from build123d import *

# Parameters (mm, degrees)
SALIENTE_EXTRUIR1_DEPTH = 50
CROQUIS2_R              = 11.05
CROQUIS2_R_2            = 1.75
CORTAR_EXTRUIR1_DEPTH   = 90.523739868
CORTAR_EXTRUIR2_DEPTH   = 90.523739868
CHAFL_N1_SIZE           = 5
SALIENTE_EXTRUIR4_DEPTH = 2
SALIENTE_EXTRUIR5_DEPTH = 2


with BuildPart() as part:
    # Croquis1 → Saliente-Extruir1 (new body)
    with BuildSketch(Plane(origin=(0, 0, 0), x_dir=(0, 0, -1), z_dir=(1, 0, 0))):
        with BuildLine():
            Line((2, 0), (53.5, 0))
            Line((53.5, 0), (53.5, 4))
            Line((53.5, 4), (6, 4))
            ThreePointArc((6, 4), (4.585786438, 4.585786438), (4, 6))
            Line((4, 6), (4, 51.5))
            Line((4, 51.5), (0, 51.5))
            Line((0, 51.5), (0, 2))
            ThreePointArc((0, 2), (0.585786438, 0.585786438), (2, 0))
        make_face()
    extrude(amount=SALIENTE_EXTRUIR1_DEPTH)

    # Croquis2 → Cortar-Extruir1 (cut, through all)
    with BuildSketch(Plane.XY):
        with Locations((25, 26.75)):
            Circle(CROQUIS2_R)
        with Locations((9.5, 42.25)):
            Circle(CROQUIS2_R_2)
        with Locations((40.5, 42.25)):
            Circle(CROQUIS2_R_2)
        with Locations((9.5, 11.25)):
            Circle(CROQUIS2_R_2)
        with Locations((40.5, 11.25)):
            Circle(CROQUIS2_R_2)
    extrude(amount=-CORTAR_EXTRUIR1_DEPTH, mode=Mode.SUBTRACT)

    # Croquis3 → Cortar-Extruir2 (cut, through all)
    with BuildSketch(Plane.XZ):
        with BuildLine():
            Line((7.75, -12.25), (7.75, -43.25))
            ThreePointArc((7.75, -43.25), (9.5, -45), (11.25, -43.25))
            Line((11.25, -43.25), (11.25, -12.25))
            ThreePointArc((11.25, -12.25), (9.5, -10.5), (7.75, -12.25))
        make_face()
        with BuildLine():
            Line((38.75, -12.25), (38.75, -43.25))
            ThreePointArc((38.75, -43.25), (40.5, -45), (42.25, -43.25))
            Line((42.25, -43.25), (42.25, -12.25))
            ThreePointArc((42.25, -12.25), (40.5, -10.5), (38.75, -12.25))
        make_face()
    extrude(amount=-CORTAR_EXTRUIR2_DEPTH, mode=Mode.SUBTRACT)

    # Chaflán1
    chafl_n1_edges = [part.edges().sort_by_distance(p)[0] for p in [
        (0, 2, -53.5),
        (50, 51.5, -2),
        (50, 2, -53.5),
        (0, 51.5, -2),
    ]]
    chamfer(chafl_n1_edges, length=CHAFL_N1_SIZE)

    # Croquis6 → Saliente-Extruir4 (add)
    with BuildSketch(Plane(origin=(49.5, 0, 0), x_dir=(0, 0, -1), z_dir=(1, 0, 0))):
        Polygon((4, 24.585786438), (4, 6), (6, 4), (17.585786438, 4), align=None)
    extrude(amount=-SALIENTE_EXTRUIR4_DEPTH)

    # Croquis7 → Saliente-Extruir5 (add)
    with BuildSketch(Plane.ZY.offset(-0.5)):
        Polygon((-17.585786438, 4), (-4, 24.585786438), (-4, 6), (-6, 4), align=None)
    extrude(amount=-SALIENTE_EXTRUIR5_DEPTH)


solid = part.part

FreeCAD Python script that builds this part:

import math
import FreeCAD as App
import Part
import Sketcher
Q = App.Units.Quantity


def edges_at(feature, points):
    """Names of the edges that pass closest to the given points."""
    edges = feature.Shape.Edges
    near = lambda p: min(range(len(edges)), key=lambda i: edges[i].distToShape(Part.Vertex(*p))[0])
    return sorted({f"Edge{near(p) + 1}" for p in points})


def add_polygon(sketch, points):
    """Adds a closed chain of lines whose ends are joined by coincident constraints."""
    first, n = sketch.GeometryCount, len(points)
    for a, b in zip(points, points[1:] + points[:1]):
        sketch.addGeometry(Part.LineSegment(App.Vector(*a, 0), App.Vector(*b, 0)), False)
    for i in range(n):
        sketch.addConstraint(Sketcher.Constraint("Coincident", first + i, 2, first + (i + 1) % n, 1))

doc = App.newDocument("Part")
body = doc.addObject("PartDesign::Body", "Body")

sketch1 = doc.addObject("Sketcher::SketchObject", "Sketch")
body.addObject(sketch1)
sketch1.AttachmentSupport = (doc.YZ_Plane, [""])
sketch1.MapMode = "FlatFace"
sketch1.addGeometry([
    Part.LineSegment(App.Vector(0, -2, 0), App.Vector(0, -53.5, 0)),
    Part.LineSegment(App.Vector(0, -53.5, 0), App.Vector(4, -53.5, 0)),
    Part.LineSegment(App.Vector(4, -53.5, 0), App.Vector(4, -6, 0)),
    Part.ArcOfCircle(Part.Circle(App.Vector(6, -6, 0), App.Vector(0, 0, 1), 2), math.radians(90), math.radians(180)),
    Part.LineSegment(App.Vector(6, -4, 0), App.Vector(51.5, -4, 0)),
    Part.LineSegment(App.Vector(51.5, -4, 0), App.Vector(51.5, 0, 0)),
    Part.LineSegment(App.Vector(51.5, 0, 0), App.Vector(2, 0, 0)),
    Part.ArcOfCircle(Part.Circle(App.Vector(2, -2, 0), App.Vector(0, 0, 1), 2), math.radians(90), math.radians(180)),
], False)
sketch1.addConstraint([
    Sketcher.Constraint("Coincident", 0, 2, 1, 1),
    Sketcher.Constraint("Coincident", 1, 2, 2, 1),
    Sketcher.Constraint("Tangent", 2, 2, 3, 2),
    Sketcher.Constraint("Tangent", 3, 1, 4, 1),
    Sketcher.Constraint("Coincident", 4, 2, 5, 1),
    Sketcher.Constraint("Coincident", 5, 2, 6, 1),
    Sketcher.Constraint("Tangent", 6, 2, 7, 1),
    Sketcher.Constraint("Tangent", 7, 2, 0, 1),
    Sketcher.Constraint("Vertical", 0),
    Sketcher.Constraint("Horizontal", 1),
    Sketcher.Constraint("Vertical", 2),
    Sketcher.Constraint("Horizontal", 4),
    Sketcher.Constraint("Vertical", 5),
    Sketcher.Constraint("Horizontal", 6),
    Sketcher.Constraint("Equal", 3, 7),
    Sketcher.Constraint("PointOnObject", 0, 2, -2),
    Sketcher.Constraint("PointOnObject", 5, 2, -1),
    Sketcher.Constraint("Equal", 1, 5),
    Sketcher.Constraint("Radius", 3, 2.0),
    Sketcher.Constraint("DistanceX", 1, 1, 1, 2, 4.0),
    Sketcher.Constraint("DistanceX", 4, 1, 4, 2, 45.5),
    Sketcher.Constraint("DistanceY", 0, 2, 0, 1, 51.5),
])
pad1 = doc.addObject("PartDesign::Pad", "Pad")
body.addObject(pad1)
pad1.Profile = sketch1
pad1.Length = 50

sketch2 = doc.addObject("Sketcher::SketchObject", "Sketch001")
body.addObject(sketch2)
sketch2.AttachmentSupport = (doc.XY_Plane, [""])
sketch2.MapMode = "FlatFace"
sketch2.addGeometry([
    Part.Circle(App.Vector(25, 26.75, 0), App.Vector(0, 0, 1), 11.05),
    Part.Circle(App.Vector(9.5, 42.25, 0), App.Vector(0, 0, 1), 1.75),
    Part.Circle(App.Vector(40.5, 42.25, 0), App.Vector(0, 0, 1), 1.75),
    Part.Circle(App.Vector(9.5, 11.25, 0), App.Vector(0, 0, 1), 1.75),
    Part.Circle(App.Vector(40.5, 11.25, 0), App.Vector(0, 0, 1), 1.75),
], False)
sketch2.addConstraint([
    Sketcher.Constraint("Equal", 1, 2),
    Sketcher.Constraint("Equal", 2, 3),
    Sketcher.Constraint("Equal", 3, 4),
    Sketcher.Constraint("Horizontal", 1, 3, 2, 3),
    Sketcher.Constraint("Horizontal", 3, 3, 4, 3),
    Sketcher.Constraint("Vertical", 1, 3, 3, 3),
    Sketcher.Constraint("Vertical", 2, 3, 4, 3),
    Sketcher.Constraint("Diameter", 0, 22.1),
    Sketcher.Constraint("Diameter", 1, 3.5),
    Sketcher.Constraint("DistanceX", -1, 1, 0, 3, 25.0),
    Sketcher.Constraint("DistanceX", 1, 3, 2, 3, 31.0),
    Sketcher.Constraint("DistanceY", 3, 3, 1, 3, 31.0),
    Sketcher.Constraint("DistanceX", -1, 1, 1, 3, 9.5),
    Sketcher.Constraint("DistanceY", 0, 3, 1, 3, 15.5),
    Sketcher.Constraint("DistanceY", -1, 1, 0, 3, 26.75),
])
pocket1 = doc.addObject("PartDesign::Pocket", "Pocket")
body.addObject(pocket1)
pocket1.Profile = sketch2
pocket1.Type = "ThroughAll"

sketch3 = doc.addObject("Sketcher::SketchObject", "Sketch002")
body.addObject(sketch3)
sketch3.AttachmentSupport = (doc.XZ_Plane, [""])
sketch3.MapMode = "FlatFace"
sketch3.addGeometry([
    Part.LineSegment(App.Vector(7.75, -12.25, 0), App.Vector(7.75, -43.25, 0)),
    Part.ArcOfCircle(Part.Circle(App.Vector(9.5, -43.25, 0), App.Vector(0, 0, 1), 1.75), math.radians(180), math.radians(360)),
    Part.LineSegment(App.Vector(11.25, -43.25, 0), App.Vector(11.25, -12.25, 0)),
    Part.ArcOfCircle(Part.Circle(App.Vector(9.5, -12.25, 0), App.Vector(0, 0, 1), 1.75), math.radians(0), math.radians(180)),
    Part.LineSegment(App.Vector(38.75, -12.25, 0), App.Vector(38.75, -43.25, 0)),
    Part.ArcOfCircle(Part.Circle(App.Vector(40.5, -43.25, 0), App.Vector(0, 0, 1), 1.75), math.radians(180), math.radians(360)),
    Part.LineSegment(App.Vector(42.25, -43.25, 0), App.Vector(42.25, -12.25, 0)),
    Part.ArcOfCircle(Part.Circle(App.Vector(40.5, -12.25, 0), App.Vector(0, 0, 1), 1.75), math.radians(0), math.radians(180)),
], False)
sketch3.addConstraint([
    Sketcher.Constraint("Tangent", 0, 2, 1, 1),
    Sketcher.Constraint("Tangent", 1, 2, 2, 1),
    Sketcher.Constraint("Tangent", 2, 2, 3, 1),
    Sketcher.Constraint("Tangent", 3, 2, 0, 1),
    Sketcher.Constraint("Tangent", 4, 2, 5, 1),
    Sketcher.Constraint("Tangent", 5, 2, 6, 1),
    Sketcher.Constraint("Tangent", 6, 2, 7, 1),
    Sketcher.Constraint("Tangent", 7, 2, 4, 1),
    Sketcher.Constraint("Vertical", 0),
    Sketcher.Constraint("Vertical", 2),
    Sketcher.Constraint("Vertical", 4),
    Sketcher.Constraint("Vertical", 6),
    Sketcher.Constraint("Equal", 3, 5),
    Sketcher.Constraint("Horizontal", 1, 3, 5, 3),
    Sketcher.Constraint("Horizontal", 3, 3, 7, 3),
    Sketcher.Constraint("DistanceY", 0, 2, 0, 1, 31.0),
    Sketcher.Constraint("Radius", 1, 1.75),
    Sketcher.Constraint("DistanceX", 1, 3, 5, 3, 31.0),
    Sketcher.Constraint("DistanceX", -1, 1, 1, 3, 9.5),
    Sketcher.Constraint("DistanceY", 1, 3, -1, 1, 43.25),
])
pocket2 = doc.addObject("PartDesign::Pocket", "Pocket001")
body.addObject(pocket2)
pocket2.Profile = sketch3
pocket2.Type = "ThroughAll"
doc.recompute()

chamfer = doc.addObject("PartDesign::Chamfer", "Chamfer")
body.addObject(chamfer)
chamfer.Base = (pocket2, edges_at(pocket2, [
    (0, 2, -53.5),
    (50, 51.5, -2),
    (50, 2, -53.5),
    (0, 51.5, -2),
]))
chamfer.Size = 5

sketch4 = doc.addObject("Sketcher::SketchObject", "Sketch003")
body.addObject(sketch4)
sketch4.AttachmentSupport = (doc.YZ_Plane, [""])
sketch4.MapMode = "FlatFace"
sketch4.AttachmentOffset = App.Placement(App.Vector(0, 0, 49.5), App.Rotation())
add_polygon(sketch4, [(24.585786, -4), (6, -4), (4, -6), (4, -17.585786)])
sketch4.addConstraint([
    Sketcher.Constraint("Horizontal", 0),
    Sketcher.Constraint("Vertical", 2),
    Sketcher.Constraint("Angle", 1, Q("-135 deg")),
    Sketcher.Constraint("DistanceX", -1, 1, 0, 2, 6.0),
    Sketcher.Constraint("DistanceY", 0, 2, -1, 1, 4.0),
    Sketcher.Constraint("DistanceX", -1, 1, 1, 2, 4.0),
    Sketcher.Constraint("DistanceX", 0, 2, 0, 1, 18.585786),
    Sketcher.Constraint("DistanceY", 2, 2, 2, 1, 11.585786),
])
pad2 = doc.addObject("PartDesign::Pad", "Pad001")
body.addObject(pad2)
pad2.Profile = sketch4
pad2.Length = 2
pad2.Reversed = True

sketch5 = doc.addObject("Sketcher::SketchObject", "Sketch004")
body.addObject(sketch5)
sketch5.AttachmentSupport = (doc.YZ_Plane, [""])
sketch5.MapMode = "FlatFace"
sketch5.AttachmentOffset = App.Placement(App.Vector(0, 0, 0.5), App.Rotation())
add_polygon(sketch5, [(24.585786, -4), (4, -17.585786), (4, -6), (6, -4)])
sketch5.addConstraint([
    Sketcher.Constraint("Vertical", 1),
    Sketcher.Constraint("Horizontal", 3),
    Sketcher.Constraint("Angle", 2, Q("45 deg")),
    Sketcher.Constraint("DistanceX", -1, 1, 0, 2, 4.0),
    Sketcher.Constraint("DistanceY", 1, 2, -1, 1, 6.0),
    Sketcher.Constraint("DistanceX", -1, 1, 2, 2, 6.0),
    Sketcher.Constraint("DistanceX", 3, 1, 3, 2, 18.585786),
    Sketcher.Constraint("DistanceY", 1, 1, 1, 2, 11.585786),
])
pad3 = doc.addObject("PartDesign::Pad", "Pad002")
body.addObject(pad3)
pad3.Profile = sketch5
pad3.Length = 2

doc.recompute()
